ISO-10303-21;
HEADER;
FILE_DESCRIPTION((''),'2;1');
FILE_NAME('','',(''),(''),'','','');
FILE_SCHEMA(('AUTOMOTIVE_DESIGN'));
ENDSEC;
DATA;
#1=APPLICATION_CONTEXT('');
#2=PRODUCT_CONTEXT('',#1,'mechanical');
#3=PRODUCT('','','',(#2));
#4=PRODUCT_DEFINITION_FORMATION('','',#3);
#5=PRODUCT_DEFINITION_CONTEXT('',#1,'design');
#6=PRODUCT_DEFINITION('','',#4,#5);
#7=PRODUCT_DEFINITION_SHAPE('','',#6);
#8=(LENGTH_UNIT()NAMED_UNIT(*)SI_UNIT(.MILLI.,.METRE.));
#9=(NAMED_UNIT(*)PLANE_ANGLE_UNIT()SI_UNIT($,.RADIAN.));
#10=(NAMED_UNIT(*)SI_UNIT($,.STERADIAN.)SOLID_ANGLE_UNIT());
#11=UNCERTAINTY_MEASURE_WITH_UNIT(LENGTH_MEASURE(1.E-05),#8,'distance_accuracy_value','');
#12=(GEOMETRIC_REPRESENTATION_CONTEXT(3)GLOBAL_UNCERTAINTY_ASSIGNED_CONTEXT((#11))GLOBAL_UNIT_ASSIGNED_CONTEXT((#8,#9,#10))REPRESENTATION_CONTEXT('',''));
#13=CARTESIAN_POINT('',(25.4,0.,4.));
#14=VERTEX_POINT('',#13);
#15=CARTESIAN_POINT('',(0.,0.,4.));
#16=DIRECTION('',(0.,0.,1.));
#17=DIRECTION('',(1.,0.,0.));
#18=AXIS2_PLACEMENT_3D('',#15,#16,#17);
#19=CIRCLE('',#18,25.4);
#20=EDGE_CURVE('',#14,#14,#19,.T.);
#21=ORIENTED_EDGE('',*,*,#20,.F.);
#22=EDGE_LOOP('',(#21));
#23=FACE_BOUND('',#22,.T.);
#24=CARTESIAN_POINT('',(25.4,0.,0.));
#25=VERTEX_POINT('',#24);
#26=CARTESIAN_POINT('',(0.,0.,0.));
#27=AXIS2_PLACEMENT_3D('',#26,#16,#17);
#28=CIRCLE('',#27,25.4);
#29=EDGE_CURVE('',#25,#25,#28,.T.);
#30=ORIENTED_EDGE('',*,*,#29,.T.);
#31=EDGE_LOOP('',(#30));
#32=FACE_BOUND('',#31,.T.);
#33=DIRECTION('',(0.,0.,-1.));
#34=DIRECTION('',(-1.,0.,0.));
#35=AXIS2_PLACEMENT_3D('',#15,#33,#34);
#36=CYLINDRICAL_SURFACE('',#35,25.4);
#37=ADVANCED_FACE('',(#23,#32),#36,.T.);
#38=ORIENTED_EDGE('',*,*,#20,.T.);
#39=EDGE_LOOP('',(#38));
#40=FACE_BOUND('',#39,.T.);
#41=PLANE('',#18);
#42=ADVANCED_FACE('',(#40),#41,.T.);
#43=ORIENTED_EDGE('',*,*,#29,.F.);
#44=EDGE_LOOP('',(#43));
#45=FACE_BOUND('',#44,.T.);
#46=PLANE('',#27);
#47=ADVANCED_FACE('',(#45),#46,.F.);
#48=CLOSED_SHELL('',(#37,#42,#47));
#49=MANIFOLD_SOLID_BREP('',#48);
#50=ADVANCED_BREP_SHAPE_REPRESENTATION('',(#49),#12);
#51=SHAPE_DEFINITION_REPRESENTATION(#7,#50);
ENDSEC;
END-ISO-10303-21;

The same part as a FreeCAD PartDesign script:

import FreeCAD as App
import Part
import Sketcher

doc = App.newDocument("Part")
body = doc.addObject("PartDesign::Body", "Body")

# Sketch on XY plane
sketch1 = doc.addObject("Sketcher::SketchObject", "Sketch")
body.addObject(sketch1)
sketch1.AttachmentSupport = (doc.XY_Plane, [""])
sketch1.MapMode = "FlatFace"
sketch1.addGeometry(Part.Circle(App.Vector(0, 0, 0), App.Vector(0, 0, 1), 25), False)
sketch1.addConstraint([
    Sketcher.Constraint("Coincident", 0, 3, -1, 1),
    Sketcher.Constraint("Diameter", 0, 50.8),
])
pad1 = doc.addObject("PartDesign::Pad", "Pad")
body.addObject(pad1)
pad1.Profile = sketch1
pad1.Length = 4

doc.recompute()
